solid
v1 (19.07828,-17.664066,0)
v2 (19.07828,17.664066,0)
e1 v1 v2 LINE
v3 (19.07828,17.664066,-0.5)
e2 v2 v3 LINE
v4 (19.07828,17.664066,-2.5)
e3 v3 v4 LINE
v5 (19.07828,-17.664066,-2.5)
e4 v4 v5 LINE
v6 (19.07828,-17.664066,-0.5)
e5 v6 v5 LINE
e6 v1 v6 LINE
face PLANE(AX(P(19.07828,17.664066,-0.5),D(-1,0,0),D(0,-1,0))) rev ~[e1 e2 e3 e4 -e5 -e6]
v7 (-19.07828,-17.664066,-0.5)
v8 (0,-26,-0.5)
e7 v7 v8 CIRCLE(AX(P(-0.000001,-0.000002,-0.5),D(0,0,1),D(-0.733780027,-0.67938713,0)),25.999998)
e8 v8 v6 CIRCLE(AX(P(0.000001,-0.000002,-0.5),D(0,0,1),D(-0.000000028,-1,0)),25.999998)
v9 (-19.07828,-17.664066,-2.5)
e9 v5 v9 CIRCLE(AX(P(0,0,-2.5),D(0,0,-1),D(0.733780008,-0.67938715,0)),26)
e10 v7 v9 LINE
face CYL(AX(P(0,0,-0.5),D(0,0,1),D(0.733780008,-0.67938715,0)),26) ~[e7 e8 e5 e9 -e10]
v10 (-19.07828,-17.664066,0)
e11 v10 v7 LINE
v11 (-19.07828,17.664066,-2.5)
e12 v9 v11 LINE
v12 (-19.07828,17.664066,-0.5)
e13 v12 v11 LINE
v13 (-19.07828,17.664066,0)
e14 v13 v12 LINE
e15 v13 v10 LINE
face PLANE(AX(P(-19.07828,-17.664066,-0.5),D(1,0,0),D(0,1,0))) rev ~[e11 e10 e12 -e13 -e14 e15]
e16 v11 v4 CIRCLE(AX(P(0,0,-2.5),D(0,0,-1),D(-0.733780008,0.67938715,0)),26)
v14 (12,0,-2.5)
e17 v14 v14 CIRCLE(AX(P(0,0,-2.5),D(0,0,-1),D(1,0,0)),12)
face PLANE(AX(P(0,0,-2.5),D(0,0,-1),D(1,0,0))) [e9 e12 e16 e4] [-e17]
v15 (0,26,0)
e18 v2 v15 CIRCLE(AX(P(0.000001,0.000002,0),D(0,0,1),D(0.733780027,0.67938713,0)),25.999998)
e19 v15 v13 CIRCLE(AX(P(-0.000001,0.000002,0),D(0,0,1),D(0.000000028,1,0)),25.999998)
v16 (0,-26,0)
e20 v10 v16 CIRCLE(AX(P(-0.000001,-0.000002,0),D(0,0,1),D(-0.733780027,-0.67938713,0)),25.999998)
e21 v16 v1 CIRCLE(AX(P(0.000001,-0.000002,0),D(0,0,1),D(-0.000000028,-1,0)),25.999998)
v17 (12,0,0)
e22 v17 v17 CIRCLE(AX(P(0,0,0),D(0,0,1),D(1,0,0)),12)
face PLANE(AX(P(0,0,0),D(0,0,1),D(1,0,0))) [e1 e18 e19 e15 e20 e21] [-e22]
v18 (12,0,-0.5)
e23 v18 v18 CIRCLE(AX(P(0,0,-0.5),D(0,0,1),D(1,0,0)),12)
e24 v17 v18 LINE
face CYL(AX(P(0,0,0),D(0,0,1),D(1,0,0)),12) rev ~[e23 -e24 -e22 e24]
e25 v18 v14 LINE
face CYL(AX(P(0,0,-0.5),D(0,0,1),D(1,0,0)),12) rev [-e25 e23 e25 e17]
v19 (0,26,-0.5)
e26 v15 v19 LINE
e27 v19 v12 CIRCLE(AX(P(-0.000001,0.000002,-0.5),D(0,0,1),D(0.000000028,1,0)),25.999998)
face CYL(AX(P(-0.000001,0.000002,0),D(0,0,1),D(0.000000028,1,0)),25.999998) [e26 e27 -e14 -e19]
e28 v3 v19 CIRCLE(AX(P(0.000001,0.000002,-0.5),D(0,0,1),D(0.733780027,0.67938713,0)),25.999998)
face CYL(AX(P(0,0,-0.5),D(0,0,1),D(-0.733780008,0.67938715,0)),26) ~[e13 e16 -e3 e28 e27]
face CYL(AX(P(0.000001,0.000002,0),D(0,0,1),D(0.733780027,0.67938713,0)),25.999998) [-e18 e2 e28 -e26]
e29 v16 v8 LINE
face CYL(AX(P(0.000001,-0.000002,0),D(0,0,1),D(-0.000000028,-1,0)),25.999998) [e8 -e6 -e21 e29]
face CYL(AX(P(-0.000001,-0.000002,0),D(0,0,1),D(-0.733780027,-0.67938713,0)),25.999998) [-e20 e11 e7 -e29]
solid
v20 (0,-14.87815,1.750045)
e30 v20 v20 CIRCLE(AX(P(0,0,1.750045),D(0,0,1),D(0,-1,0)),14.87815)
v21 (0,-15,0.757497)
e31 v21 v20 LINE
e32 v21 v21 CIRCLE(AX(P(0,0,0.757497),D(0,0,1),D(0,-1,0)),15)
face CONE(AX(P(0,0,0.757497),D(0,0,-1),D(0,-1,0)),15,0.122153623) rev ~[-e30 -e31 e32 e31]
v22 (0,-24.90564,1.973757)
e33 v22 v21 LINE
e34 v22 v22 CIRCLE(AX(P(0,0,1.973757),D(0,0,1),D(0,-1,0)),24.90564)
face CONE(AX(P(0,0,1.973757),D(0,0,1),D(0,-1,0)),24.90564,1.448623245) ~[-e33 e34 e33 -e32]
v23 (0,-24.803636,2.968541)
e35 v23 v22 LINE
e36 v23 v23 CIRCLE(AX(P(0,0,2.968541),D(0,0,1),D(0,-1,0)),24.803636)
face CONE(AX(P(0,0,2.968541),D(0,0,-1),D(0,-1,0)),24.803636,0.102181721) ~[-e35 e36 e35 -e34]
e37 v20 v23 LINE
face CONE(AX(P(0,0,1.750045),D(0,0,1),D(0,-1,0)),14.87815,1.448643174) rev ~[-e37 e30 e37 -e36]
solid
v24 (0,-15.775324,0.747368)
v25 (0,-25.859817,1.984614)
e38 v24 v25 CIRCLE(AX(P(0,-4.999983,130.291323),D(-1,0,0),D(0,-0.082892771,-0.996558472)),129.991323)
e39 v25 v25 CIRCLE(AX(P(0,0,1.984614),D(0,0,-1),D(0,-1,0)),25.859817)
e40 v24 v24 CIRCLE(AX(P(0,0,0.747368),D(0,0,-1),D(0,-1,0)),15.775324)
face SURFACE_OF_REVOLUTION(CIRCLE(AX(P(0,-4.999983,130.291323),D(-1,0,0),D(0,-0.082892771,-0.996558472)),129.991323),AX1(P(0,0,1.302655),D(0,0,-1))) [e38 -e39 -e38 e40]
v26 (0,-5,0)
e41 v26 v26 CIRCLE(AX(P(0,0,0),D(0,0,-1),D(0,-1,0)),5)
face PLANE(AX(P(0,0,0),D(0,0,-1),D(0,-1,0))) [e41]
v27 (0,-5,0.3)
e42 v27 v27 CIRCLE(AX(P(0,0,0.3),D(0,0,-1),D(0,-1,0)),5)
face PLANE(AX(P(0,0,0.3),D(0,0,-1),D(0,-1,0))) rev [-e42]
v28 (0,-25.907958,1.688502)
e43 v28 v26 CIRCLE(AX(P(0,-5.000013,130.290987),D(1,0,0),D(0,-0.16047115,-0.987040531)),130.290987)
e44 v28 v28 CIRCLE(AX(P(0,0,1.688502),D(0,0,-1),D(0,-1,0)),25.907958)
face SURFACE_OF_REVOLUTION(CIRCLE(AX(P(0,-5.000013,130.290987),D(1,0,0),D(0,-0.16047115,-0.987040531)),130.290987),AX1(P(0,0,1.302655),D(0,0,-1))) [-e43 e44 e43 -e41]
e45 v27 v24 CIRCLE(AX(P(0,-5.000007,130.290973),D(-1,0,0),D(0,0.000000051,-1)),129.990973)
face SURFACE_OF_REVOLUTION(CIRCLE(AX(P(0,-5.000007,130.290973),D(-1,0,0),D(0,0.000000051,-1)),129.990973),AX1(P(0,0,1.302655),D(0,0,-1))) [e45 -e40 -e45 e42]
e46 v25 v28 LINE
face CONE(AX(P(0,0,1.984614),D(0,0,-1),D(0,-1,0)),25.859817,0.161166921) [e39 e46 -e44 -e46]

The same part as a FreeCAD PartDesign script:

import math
import FreeCAD as App
import Part
import Sketcher
from FreeCAD import Vector
Q = App.Units.Quantity


def add_polygon(sketch, points):
    """Adds a closed chain of lines whose ends are joined by coincident constraints."""
    first, n = sketch.GeometryCount, len(points)
    for a, b in zip(points, points[1:] + points[:1]):
        sketch.addGeometry(Part.LineSegment(App.Vector(*a, 0), App.Vector(*b, 0)), False)
    for i in range(n):
        sketch.addConstraint(Sketcher.Constraint("Coincident", first + i, 2, first + (i + 1) % n, 1))

doc = App.newDocument("Part")
body = doc.addObject("PartDesign::Body", "Body")

sketch1 = body.newObject("Sketcher::SketchObject", "Sketch")
sketch1.AttachmentSupport = (doc.getObject("XY_Plane"), [""])
sketch1.MapMode = "FlatFace"
sketch1.addGeometry(Part.ArcOfCircle(Part.Circle(Vector(0, 0, 0), Vector(0, 0, 1), 26), math.radians(43), math.radians(90)), False)
sketch1.addGeometry(Part.ArcOfCircle(Part.Circle(Vector(0, 0, 0), Vector(0, 0, 1), 26), math.radians(90), math.radians(137)), False)
sketch1.addGeometry(Part.LineSegment(Vector(-19, 18, 0), Vector(-19, -18, 0)), False)
sketch1.addGeometry(Part.ArcOfCircle(Part.Circle(Vector(0, 0, 0), Vector(0, 0, 1), 26), math.radians(-137), math.radians(-90)), False)
sketch1.addGeometry(Part.ArcOfCircle(Part.Circle(Vector(0, 0, 0), Vector(0, 0, 1), 26), math.radians(-90), math.radians(-43)), False)
sketch1.addGeometry(Part.LineSegment(Vector(19, -18, 0), Vector(19, 18, 0)), False)
sketch1.addGeometry(Part.Circle(Vector(0, 0, 0), Vector(0, 0, 1), 12), False)
sketch1.addConstraint(Sketcher.Constraint("Tangent", 0, 2, 1, 1))
sketch1.addConstraint(Sketcher.Constraint("Coincident", 1, 2, 2, 1))
sketch1.addConstraint(Sketcher.Constraint("Coincident", 2, 2, 3, 1))
sketch1.addConstraint(Sketcher.Constraint("Tangent", 3, 2, 4, 1))
sketch1.addConstraint(Sketcher.Constraint("Coincident", 4, 2, 5, 1))
sketch1.addConstraint(Sketcher.Constraint("Coincident", 5, 2, 0, 1))
sketch1.addConstraint(Sketcher.Constraint("Vertical", 2))
sketch1.addConstraint(Sketcher.Constraint("Vertical", 5))
sketch1.addConstraint(Sketcher.Constraint("Coincident", 0, 3, -1, 1))
sketch1.addConstraint(Sketcher.Constraint("Coincident", 3, 3, -1, 1))
sketch1.addConstraint(Sketcher.Constraint("Coincident", 6, 3, -1, 1))
sketch1.addConstraint(Sketcher.Constraint("Equal", 0, 1))
sketch1.addConstraint(Sketcher.Constraint("Equal", 1, 3))
sketch1.addConstraint(Sketcher.Constraint("Equal", 3, 4))
sketch1.addConstraint(Sketcher.Constraint("PointOnObject", 0, 2, -2))
sketch1.addConstraint(Sketcher.Constraint("PointOnObject", 3, 2, -2))
sketch1.addConstraint(Sketcher.Constraint("Horizontal", 2, 2, 4, 2))
sketch1.addConstraint(Sketcher.Constraint("Diameter", 6, Q("24 mm")))
sketch1.addConstraint(Sketcher.Constraint("Radius", 0, Q("25.999998 mm")))
sketch1.addConstraint(Sketcher.Constraint("DistanceY", 2, 2, 2, 1, Q("35.328132 mm")))
pad1 = body.newObject("PartDesign::Pad", "Pad")
pad1.Profile = sketch1
pad1.Length = 0.5
pad1.Reversed = True

sketch2 = body.newObject("Sketcher::SketchObject", "Sketch001")
sketch2.AttachmentSupport = (doc.getObject("XY_Plane"), [""])
sketch2.MapMode = "FlatFace"
sketch2.AttachmentOffset = App.Placement(Vector(0, 0, -0.5), App.Rotation())
sketch2.addGeometry(Part.ArcOfCircle(Part.Circle(Vector(0, 0, 0), Vector(0, 0, 1), 26), math.radians(43), math.radians(137)), False)
sketch2.addGeometry(Part.LineSegment(Vector(19, 18, 0), Vector(19, -18, 0)), False)
sketch2.addGeometry(Part.ArcOfCircle(Part.Circle(Vector(0, 0, 0), Vector(0, 0, 1), 26), math.radians(-137), math.radians(-43)), False)
sketch2.addGeometry(Part.LineSegment(Vector(-19, -18, 0), Vector(-19, 18, 0)), False)
sketch2.addGeometry(Part.Circle(Vector(0, 0, 0), Vector(0, 0, 1), 12), False)
sketch2.addConstraint(Sketcher.Constraint("Coincident", 0, 1, 1, 1))
sketch2.addConstraint(Sketcher.Constraint("Coincident", 1, 2, 2, 2))
sketch2.addConstraint(Sketcher.Constraint("Coincident", 2, 1, 3, 1))
sketch2.addConstraint(Sketcher.Constraint("Coincident", 3, 2, 0, 2))
sketch2.addConstraint(Sketcher.Constraint("Vertical", 1))
sketch2.addConstraint(Sketcher.Constraint("Vertical", 3))
sketch2.addConstraint(Sketcher.Constraint("Coincident", 0, 3, -1, 1))
sketch2.addConstraint(Sketcher.Constraint("Coincident", 2, 3, -1, 1))
sketch2.addConstraint(Sketcher.Constraint("Coincident", 4, 3, -1, 1))
sketch2.addConstraint(Sketcher.Constraint("Equal", 0, 2))
sketch2.addConstraint(Sketcher.Constraint("Horizontal", 1, 2, 2, 1))
sketch2.addConstraint(Sketcher.Constraint("Diameter", 4, Q("24 mm")))
sketch2.addConstraint(Sketcher.Constraint("Radius", 0, Q("26 mm")))
sketch2.addConstraint(Sketcher.Constraint("DistanceY", 1, 2, 1, 1, Q("35.328132 mm")))
pad2 = body.newObject("PartDesign::Pad", "Pad001")
pad2.Profile = sketch2
pad2.Length = 2
pad2.Reversed = True
body2 = doc.addObject("PartDesign::Body", "Body001")

sketch3 = body2.newObject("Sketcher::SketchObject", "Sketch002")
sketch3.AttachmentSupport = (doc.getObject("YZ_Plane001"), [""])
sketch3.MapMode = "FlatFace"
sketch3.addGeometry(Part.LineSegment(Vector(0, 0, 0), Vector(0, 0.3, 0)), False)
sketch3.addGeometry(Part.LineSegment(Vector(0, 0.3, 0), Vector(-5, 0.3, 0)), False)
sketch3.addGeometry(Part.ArcOfCircle(Part.Circle(Vector(-5.000007, 130.290973, 0), Vector(0, 0, 1), 129.990973), math.radians(-94.754864), math.radians(-89.999997)), False)
sketch3.addGeometry(Part.ArcOfCircle(Part.Circle(Vector(-4.999983, 130.291323, 0), Vector(0, 0, 1), 129.991323), math.radians(-99.234234), math.radians(-94.754862)), False)
sketch3.addGeometry(Part.LineSegment(Vector(-25.859817, 1.984614, 0), Vector(-25.907958, 1.688502, 0)), False)
sketch3.addGeometry(Part.ArcOfCircle(Part.Circle(Vector(-5.000013, 130.290987, 0), Vector(0, 0, 1), 130.290987), math.radians(-99.234244), math.radians(-89.999994)), False)
sketch3.addGeometry(Part.LineSegment(Vector(-5, 0, 0), Vector(0, 0, 0)), False)
sketch3.addConstraint(Sketcher.Constraint("Coincident", 0, 2, 1, 1))
sketch3.addConstraint(Sketcher.Constraint("Coincident", 1, 2, 2, 2))
sketch3.addConstraint(Sketcher.Constraint("Coincident", 2, 1, 3, 2))
sketch3.addConstraint(Sketcher.Constraint("Coincident", 3, 1, 4, 1))
sketch3.addConstraint(Sketcher.Constraint("Coincident", 4, 2, 5, 1))
sketch3.addConstraint(Sketcher.Constraint("Coincident", 5, 2, 6, 1))
sketch3.addConstraint(Sketcher.Constraint("Coincident", 6, 2, 0, 1))
sketch3.addConstraint(Sketcher.Constraint("Vertical", 0))
sketch3.addConstraint(Sketcher.Constraint("Horizontal", 1))
sketch3.addConstraint(Sketcher.Constraint("Horizontal", 6))
sketch3.addConstraint(Sketcher.Constraint("Coincident", 6, 2, -1, 1))
sketch3.addConstraint(Sketcher.Constraint("DistanceX", 1, 2, 1, 1, Q("5 mm")))
sketch3.addConstraint(Sketcher.Constraint("DistanceX", 6, 1, 6, 2, Q("5 mm")))
sketch3.addConstraint(Sketcher.Constraint("DistanceY", 0, 1, 0, 2, Q("0.3 mm")))
sketch3.addConstraint(Sketcher.Constraint("Distance", 4, Q("0.3 mm")))
sketch3.addConstraint(Sketcher.Constraint("Radius", 2, Q("129.990973 mm")))
sketch3.addConstraint(Sketcher.Constraint("Radius", 3, Q("129.991323 mm")))
sketch3.addConstraint(Sketcher.Constraint("Radius", 5, Q("130.290987 mm")))
sketch3.addConstraint(Sketcher.Constraint("DistanceY", 1, 2, 4, 2, Q("1.388502 mm")))
sketch3.addConstraint(Sketcher.Constraint("DistanceY", -1, 1, 2, 1, Q("0.747368 mm")))
sketch3.addConstraint(Sketcher.Constraint("DistanceX", 4, 2, -1, 1, Q("25.907958 mm")))
sketch3.addConstraint(Sketcher.Constraint("DistanceY", 2, 3, 3, 3, Q("0.000349 mm")))
sketch3.addConstraint(Sketcher.Constraint("DistanceX", 3, 1, 2, 3, Q("20.85981 mm")))
revolution = body2.newObject("PartDesign::Revolution", "Revolution")
revolution.Profile = sketch3
revolution.ReferenceAxis = (sketch3, ["V_Axis"])
revolution.Angle = 360
body3 = doc.addObject("PartDesign::Body", "Body002")

sketch4 = body3.newObject("Sketcher::SketchObject", "Sketch003")
sketch4.AttachmentSupport = (doc.getObject("YZ_Plane002"), [""])
sketch4.MapMode = "FlatFace"
add_polygon(sketch4, [(-24.8, 3), (-24.9, 2), (-15, 0.8), (-14.9, 1.8)])
sketch4.addConstraint(Sketcher.Constraint("Perpendicular", 2, 3))
sketch4.addConstraint(Sketcher.Constraint("Equal", 0, 2))
sketch4.addConstraint(Sketcher.Constraint("Angle", 1, Q("-7.000002 deg")))
sketch4.addConstraint(Sketcher.Constraint("Distance", 0, Q("1 mm")))
sketch4.addConstraint(Sketcher.Constraint("Distance", 3, Q("10 mm")))
sketch4.addConstraint(Sketcher.Constraint("DistanceX", 1, 2, -1, 1, Q("15 mm")))
sketch4.addConstraint(Sketcher.Constraint("Distance", 1, Q("9.98003 mm")))
sketch4.addConstraint(Sketcher.Constraint("DistanceY", -1, 1, 3, 2, Q("2.968541 mm")))
revolution2 = body3.newObject("PartDesign::Revolution", "Revolution001")
revolution2.Profile = sketch4
revolution2.ReferenceAxis = (sketch4, ["V_Axis"])
revolution2.Angle = 360

doc.recompute()
